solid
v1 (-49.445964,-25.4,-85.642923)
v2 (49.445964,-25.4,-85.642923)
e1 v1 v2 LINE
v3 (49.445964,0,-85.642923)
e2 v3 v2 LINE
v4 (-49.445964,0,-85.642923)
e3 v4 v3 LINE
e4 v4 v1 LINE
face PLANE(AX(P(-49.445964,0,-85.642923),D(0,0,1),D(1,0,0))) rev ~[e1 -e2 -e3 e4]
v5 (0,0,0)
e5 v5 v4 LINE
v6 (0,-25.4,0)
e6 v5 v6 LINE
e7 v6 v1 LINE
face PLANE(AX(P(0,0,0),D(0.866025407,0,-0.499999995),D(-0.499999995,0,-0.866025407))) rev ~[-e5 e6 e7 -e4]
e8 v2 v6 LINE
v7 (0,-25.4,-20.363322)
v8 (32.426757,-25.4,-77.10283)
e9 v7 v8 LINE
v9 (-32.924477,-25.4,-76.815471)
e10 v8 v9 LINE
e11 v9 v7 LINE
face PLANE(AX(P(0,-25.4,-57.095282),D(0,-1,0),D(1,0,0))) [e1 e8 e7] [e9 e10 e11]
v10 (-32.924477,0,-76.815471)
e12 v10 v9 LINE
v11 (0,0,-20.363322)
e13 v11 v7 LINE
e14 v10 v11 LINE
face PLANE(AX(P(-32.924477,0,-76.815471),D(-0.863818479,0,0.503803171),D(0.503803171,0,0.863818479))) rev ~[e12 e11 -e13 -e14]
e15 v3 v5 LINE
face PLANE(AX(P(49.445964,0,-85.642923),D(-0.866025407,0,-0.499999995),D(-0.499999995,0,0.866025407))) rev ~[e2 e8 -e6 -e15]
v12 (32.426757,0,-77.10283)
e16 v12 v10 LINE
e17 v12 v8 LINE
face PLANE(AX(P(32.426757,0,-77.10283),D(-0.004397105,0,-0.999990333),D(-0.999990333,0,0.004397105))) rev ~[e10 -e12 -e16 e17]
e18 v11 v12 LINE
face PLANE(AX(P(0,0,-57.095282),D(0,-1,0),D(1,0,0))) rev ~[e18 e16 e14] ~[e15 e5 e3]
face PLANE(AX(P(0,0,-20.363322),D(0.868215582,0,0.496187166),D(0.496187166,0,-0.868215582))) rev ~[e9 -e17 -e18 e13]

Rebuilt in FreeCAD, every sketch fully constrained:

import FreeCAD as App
import Part
import Sketcher
Q = App.Units.Quantity


def add_polygon(sketch, points):
    """Adds a closed chain of lines whose ends are joined by coincident constraints."""
    first, n = sketch.GeometryCount, len(points)
    for a, b in zip(points, points[1:] + points[:1]):
        sketch.addGeometry(Part.LineSegment(App.Vector(*a, 0), App.Vector(*b, 0)), False)
    for i in range(n):
        sketch.addConstraint(Sketcher.Constraint("Coincident", first + i, 2, first + (i + 1) % n, 1))

doc = App.newDocument("Part")
body = doc.addObject("PartDesign::Body", "Body")

# Sketch on XZ plane
sketch1 = doc.addObject("Sketcher::SketchObject", "Sketch")
body.addObject(sketch1)
sketch1.AttachmentSupport = (doc.XZ_Plane, [""])
sketch1.MapMode = "FlatFace"
add_polygon(sketch1, [(49, -86), (0, 0), (-49, -86)])  # lines 0-2
add_polygon(sketch1, [(0, -20), (32, -77), (-33, -77)])  # lines 3-5
sketch1.addConstraint(Sketcher.Constraint("Horizontal", 2))
sketch1.addConstraint(Sketcher.Constraint("Coincident", 0, 2, -1, 1))
sketch1.addConstraint(Sketcher.Constraint("PointOnObject", 5, 2, -2))
sketch1.addConstraint(Sketcher.Constraint("Equal", 0, 1))
sketch1.addConstraint(Sketcher.Constraint("Equal", 3, 4))
sketch1.addConstraint(Sketcher.Constraint("Equal", 4, 5))
sketch1.addConstraint(Sketcher.Constraint("Angle", 0, Q("120 deg")))
sketch1.addConstraint(Sketcher.Constraint("DistanceY", 1, 2, 5, 2, Q("65.279601 mm")))
sketch1.addConstraint(Sketcher.Constraint("Distance", 0, Q("98.891929 mm")))
sketch1.addConstraint(Sketcher.Constraint("DistanceY", 3, 2, -1, 1, Q("77.10283 mm")))
sketch1.addConstraint(Sketcher.Constraint("DistanceY", 4, 2, -1, 1, Q("76.815471 mm")))
pad1 = doc.addObject("PartDesign::Pad", "Pad")
body.addObject(pad1)
pad1.Profile = sketch1
pad1.Length = Q("1 in")

doc.recompute()
